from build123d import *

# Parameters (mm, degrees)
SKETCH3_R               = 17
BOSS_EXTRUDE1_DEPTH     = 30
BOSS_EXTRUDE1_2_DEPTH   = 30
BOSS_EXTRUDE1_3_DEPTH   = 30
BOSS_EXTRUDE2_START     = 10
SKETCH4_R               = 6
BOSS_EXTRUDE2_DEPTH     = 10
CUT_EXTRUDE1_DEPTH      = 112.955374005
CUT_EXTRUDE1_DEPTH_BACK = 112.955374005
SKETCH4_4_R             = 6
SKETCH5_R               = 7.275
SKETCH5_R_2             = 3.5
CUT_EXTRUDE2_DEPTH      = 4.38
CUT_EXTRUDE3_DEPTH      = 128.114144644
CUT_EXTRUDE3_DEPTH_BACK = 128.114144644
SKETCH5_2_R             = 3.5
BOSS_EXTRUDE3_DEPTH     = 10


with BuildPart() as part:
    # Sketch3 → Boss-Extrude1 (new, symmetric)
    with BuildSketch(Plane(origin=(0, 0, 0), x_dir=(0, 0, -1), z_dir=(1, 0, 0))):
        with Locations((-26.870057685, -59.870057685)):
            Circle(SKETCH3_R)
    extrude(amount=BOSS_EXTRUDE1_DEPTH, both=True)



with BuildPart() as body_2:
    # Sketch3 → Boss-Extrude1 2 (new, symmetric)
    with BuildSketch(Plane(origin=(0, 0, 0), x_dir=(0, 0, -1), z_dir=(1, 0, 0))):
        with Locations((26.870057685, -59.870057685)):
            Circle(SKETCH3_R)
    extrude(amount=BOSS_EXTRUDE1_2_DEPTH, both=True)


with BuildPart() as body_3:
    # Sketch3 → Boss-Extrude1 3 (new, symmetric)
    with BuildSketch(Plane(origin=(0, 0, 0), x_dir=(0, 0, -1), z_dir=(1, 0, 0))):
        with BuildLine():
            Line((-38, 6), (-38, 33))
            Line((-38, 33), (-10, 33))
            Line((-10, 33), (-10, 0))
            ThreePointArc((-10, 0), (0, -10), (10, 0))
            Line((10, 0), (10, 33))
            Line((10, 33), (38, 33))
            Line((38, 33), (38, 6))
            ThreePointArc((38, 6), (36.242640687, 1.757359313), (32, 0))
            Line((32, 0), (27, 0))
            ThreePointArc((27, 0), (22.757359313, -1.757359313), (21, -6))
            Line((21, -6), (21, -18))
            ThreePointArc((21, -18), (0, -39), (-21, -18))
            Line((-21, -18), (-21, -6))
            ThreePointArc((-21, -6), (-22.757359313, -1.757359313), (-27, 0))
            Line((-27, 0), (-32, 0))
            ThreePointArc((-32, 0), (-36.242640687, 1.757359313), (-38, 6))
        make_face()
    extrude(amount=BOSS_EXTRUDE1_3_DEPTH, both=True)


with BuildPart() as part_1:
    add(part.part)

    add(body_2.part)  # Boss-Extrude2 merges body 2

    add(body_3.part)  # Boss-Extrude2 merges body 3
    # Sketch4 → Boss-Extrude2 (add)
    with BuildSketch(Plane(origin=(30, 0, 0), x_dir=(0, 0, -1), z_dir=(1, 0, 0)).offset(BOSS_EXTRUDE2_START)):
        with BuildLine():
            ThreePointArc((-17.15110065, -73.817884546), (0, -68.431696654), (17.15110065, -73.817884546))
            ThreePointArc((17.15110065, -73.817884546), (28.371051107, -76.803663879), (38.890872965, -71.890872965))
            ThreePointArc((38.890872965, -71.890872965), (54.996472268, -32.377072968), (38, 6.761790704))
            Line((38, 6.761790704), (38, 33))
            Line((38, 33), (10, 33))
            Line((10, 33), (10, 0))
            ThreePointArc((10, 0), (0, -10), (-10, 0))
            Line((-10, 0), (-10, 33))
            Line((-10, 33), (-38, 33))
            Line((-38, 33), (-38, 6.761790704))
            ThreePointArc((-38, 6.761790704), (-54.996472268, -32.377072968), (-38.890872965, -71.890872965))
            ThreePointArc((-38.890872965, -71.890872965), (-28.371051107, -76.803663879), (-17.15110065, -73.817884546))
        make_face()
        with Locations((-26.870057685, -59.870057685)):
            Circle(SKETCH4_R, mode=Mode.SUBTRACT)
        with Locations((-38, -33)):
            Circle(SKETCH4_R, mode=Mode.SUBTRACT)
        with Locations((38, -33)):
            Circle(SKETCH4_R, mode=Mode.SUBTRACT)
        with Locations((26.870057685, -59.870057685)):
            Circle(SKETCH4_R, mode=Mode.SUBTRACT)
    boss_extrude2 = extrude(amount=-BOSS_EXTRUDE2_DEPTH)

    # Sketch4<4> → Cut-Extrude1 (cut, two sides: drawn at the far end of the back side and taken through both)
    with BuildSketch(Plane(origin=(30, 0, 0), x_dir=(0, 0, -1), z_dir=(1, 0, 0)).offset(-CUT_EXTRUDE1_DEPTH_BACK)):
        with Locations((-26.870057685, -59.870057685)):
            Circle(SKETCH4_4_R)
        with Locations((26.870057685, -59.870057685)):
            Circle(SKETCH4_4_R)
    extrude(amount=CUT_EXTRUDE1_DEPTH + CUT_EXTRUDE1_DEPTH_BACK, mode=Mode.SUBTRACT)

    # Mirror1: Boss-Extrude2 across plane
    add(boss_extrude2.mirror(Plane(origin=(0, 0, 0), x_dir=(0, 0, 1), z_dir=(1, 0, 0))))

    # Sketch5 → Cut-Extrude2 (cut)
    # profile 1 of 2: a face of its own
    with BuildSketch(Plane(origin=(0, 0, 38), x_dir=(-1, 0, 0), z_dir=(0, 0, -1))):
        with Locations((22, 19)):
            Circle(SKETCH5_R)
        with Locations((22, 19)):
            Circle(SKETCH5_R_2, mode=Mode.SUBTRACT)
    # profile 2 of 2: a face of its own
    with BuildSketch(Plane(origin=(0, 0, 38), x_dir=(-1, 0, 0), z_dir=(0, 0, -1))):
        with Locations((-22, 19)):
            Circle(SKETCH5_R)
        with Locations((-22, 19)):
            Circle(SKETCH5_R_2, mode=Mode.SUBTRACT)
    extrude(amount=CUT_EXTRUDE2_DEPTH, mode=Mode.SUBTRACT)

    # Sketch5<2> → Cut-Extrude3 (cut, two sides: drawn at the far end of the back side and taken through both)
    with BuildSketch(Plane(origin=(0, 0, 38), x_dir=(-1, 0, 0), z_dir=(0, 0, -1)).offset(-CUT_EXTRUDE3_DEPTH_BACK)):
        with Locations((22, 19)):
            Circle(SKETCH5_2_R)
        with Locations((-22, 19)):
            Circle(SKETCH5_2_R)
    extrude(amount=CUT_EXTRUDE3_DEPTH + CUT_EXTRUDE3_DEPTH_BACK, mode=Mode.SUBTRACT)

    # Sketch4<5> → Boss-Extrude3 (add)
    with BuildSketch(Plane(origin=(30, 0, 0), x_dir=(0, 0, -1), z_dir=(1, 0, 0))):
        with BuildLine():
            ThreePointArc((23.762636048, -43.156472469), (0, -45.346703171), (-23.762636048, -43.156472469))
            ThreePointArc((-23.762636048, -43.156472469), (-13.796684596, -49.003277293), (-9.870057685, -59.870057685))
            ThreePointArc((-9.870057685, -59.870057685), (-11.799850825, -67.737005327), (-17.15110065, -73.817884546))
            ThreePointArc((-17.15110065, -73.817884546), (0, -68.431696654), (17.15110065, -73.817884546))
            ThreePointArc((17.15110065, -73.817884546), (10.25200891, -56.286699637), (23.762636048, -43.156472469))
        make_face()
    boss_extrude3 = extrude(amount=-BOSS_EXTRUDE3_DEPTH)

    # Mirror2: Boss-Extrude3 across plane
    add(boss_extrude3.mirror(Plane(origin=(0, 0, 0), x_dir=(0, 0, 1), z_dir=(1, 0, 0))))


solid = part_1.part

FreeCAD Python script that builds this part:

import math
import FreeCAD as App
import Part
import Sketcher
from FreeCAD import Vector

doc = App.newDocument("Part")
body = doc.addObject("PartDesign::Body", "Body")

sketch1 = body.newObject("Sketcher::SketchObject", "Sketch")
sketch1.AttachmentSupport = (doc.getObject("YZ_Plane"), [""])
sketch1.MapMode = "FlatFace"
sketch1.addGeometry(Part.Circle(Vector(-59.870058, 26.870058, 0), Vector(0, 0, 1), 17), False)
sketch1.addConstraint([
    Sketcher.Constraint("Diameter", 0, 34.0),
    Sketcher.Constraint("DistanceX", 0, 3, -1, 1, 59.870058),
    Sketcher.Constraint("DistanceY", -1, 1, 0, 3, 26.870058),
])
pad1 = body.newObject("PartDesign::Pad", "Pad")
pad1.Profile = sketch1
pad1.Length = 60
pad1.Midplane = True
body2 = doc.addObject("PartDesign::Body", "Body001")

sketch2 = body2.newObject("Sketcher::SketchObject", "Sketch001")
sketch2.AttachmentSupport = (doc.getObject("YZ_Plane001"), [""])
sketch2.MapMode = "FlatFace"
sketch2.addGeometry(Part.Circle(Vector(-59.870058, -26.870058, 0), Vector(0, 0, 1), 17), False)
sketch2.addConstraint([
    Sketcher.Constraint("Diameter", 0, 34.0),
    Sketcher.Constraint("DistanceX", 0, 3, -1, 1, 59.870058),
    Sketcher.Constraint("DistanceY", 0, 3, -1, 1, 26.870058),
])
pad2 = body2.newObject("PartDesign::Pad", "Pad001")
pad2.Profile = sketch2
pad2.Length = 60
pad2.Midplane = True
body3 = doc.addObject("PartDesign::Body", "Body002")

sketch3 = body3.newObject("Sketcher::SketchObject", "Sketch002")
sketch3.AttachmentSupport = (doc.getObject("YZ_Plane002"), [""])
sketch3.MapMode = "FlatFace"
sketch3.addGeometry([
    Part.LineSegment(Vector(33, 38, 0), Vector(6, 38, 0)),
    Part.ArcOfCircle(Part.Circle(Vector(6, 32, 0), Vector(0, 0, 1), 6), math.radians(90), math.radians(180)),
    Part.LineSegment(Vector(0, 32, 0), Vector(0, 27, 0)),
    Part.ArcOfCircle(Part.Circle(Vector(-6, 27, 0), Vector(0, 0, 1), 6), math.radians(-90), math.radians(0)),
    Part.LineSegment(Vector(-6, 21, 0), Vector(-18, 21, 0)),
    Part.ArcOfCircle(Part.Circle(Vector(-18, 0, 0), Vector(0, 0, 1), 21), math.radians(90), math.radians(270)),
    Part.LineSegment(Vector(-18, -21, 0), Vector(-6, -21, 0)),
    Part.ArcOfCircle(Part.Circle(Vector(-6, -27, 0), Vector(0, 0, 1), 6), math.radians(0), math.radians(90)),
    Part.LineSegment(Vector(0, -27, 0), Vector(0, -32, 0)),
    Part.ArcOfCircle(Part.Circle(Vector(6, -32, 0), Vector(0, 0, 1), 6), math.radians(180), math.radians(270)),
    Part.LineSegment(Vector(6, -38, 0), Vector(33, -38, 0)),
    Part.LineSegment(Vector(33, -38, 0), Vector(33, -10, 0)),
    Part.LineSegment(Vector(33, -10, 0), Vector(0, -10, 0)),
    Part.ArcOfCircle(Part.Circle(Vector(0, 0, 0), Vector(0, 0, 1), 10), math.radians(90), math.radians(270)),
    Part.LineSegment(Vector(0, 10, 0), Vector(33, 10, 0)),
    Part.LineSegment(Vector(33, 10, 0), Vector(33, 38, 0)),
], False)
sketch3.addConstraint([
    Sketcher.Constraint("Tangent", 0, 2, 1, 1),
    Sketcher.Constraint("Tangent", 1, 2, 2, 1),
    Sketcher.Constraint("Tangent", 2, 2, 3, 2),
    Sketcher.Constraint("Tangent", 3, 1, 4, 1),
    Sketcher.Constraint("Tangent", 4, 2, 5, 1),
    Sketcher.Constraint("Tangent", 5, 2, 6, 1),
    Sketcher.Constraint("Tangent", 6, 2, 7, 2),
    Sketcher.Constraint("Tangent", 7, 1, 8, 1),
    Sketcher.Constraint("Tangent", 8, 2, 9, 1),
    Sketcher.Constraint("Tangent", 9, 2, 10, 1),
    Sketcher.Constraint("Coincident", 10, 2, 11, 1),
    Sketcher.Constraint("Coincident", 11, 2, 12, 1),
    Sketcher.Constraint("Tangent", 12, 2, 13, 2),
    Sketcher.Constraint("Tangent", 13, 1, 14, 1),
    Sketcher.Constraint("Coincident", 14, 2, 15, 1),
    Sketcher.Constraint("Coincident", 15, 2, 0, 1),
    Sketcher.Constraint("Horizontal", 0),
    Sketcher.Constraint("Vertical", 2),
    Sketcher.Constraint("Horizontal", 4),
    Sketcher.Constraint("Horizontal", 6),
    Sketcher.Constraint("Vertical", 8),
    Sketcher.Constraint("Horizontal", 10),
    Sketcher.Constraint("Vertical", 11),
    Sketcher.Constraint("Horizontal", 12),
    Sketcher.Constraint("Horizontal", 14),
    Sketcher.Constraint("Vertical", 15),
    Sketcher.Constraint("Coincident", 13, 3, -1, 1),
    Sketcher.Constraint("Equal", 1, 3),
    Sketcher.Constraint("Equal", 3, 7),
    Sketcher.Constraint("Equal", 7, 9),
    Sketcher.Constraint("Symmetric", 2, 2, 7, 1, -1, 1),
    Sketcher.Constraint("Symmetric", 1, 3, 9, 3, -1),
    Sketcher.Constraint("Vertical", 11, 2, 14, 2),
    Sketcher.Constraint("Radius", 1, 6.0),
    Sketcher.Constraint("Radius", 5, 21.0),
    Sketcher.Constraint("Radius", 13, 10.0),
    Sketcher.Constraint("DistanceX", 0, 2, 0, 1, 27.0),
    Sketcher.Constraint("DistanceX", 4, 2, 4, 1, 12.0),
    Sketcher.Constraint("DistanceY", 2, 2, 2, 1, 5.0),
])
pad3 = body3.newObject("PartDesign::Pad", "Pad002")
pad3.Profile = sketch3
pad3.Length = 60
pad3.Midplane = True
body.AllowCompound = True
doc.recompute()

boolean = body.newObject("PartDesign::Boolean", "Boolean")
boolean.Type = "Fuse"
boolean.addObjects([body2])
doc.recompute()

boolean2 = body.newObject("PartDesign::Boolean", "Boolean001")
boolean2.Type = "Fuse"
boolean2.addObjects([body3])

sketch4 = body.newObject("Sketcher::SketchObject", "Sketch003")
sketch4.AttachmentSupport = (doc.getObject("YZ_Plane"), [""])
sketch4.MapMode = "FlatFace"
sketch4.AttachmentOffset = App.Placement(Vector(0, 0, 40), App.Rotation())
sketch4.addGeometry([
    Part.ArcOfCircle(Part.Circle(Vector(-98.431697, 0, 0), Vector(0, 0, 1), 30), math.radians(-34.869091), math.radians(34.869091)),
    Part.ArcOfCircle(Part.Circle(Vector(-59.870058, -26.870058, 0), Vector(0, 0, 1), 17), math.radians(145.130909), math.radians(225)),
    Part.ArcOfCircle(Part.Circle(Vector(-33, 0, 0), Vector(0, 0, 1), 55), math.radians(-135), math.radians(-43.702114)),
    Part.LineSegment(Vector(6.761791, -38, 0), Vector(33, -38, 0)),
    Part.LineSegment(Vector(33, -38, 0), Vector(33, -10, 0)),
    Part.LineSegment(Vector(33, -10, 0), Vector(0, -10, 0)),
    Part.ArcOfCircle(Part.Circle(Vector(0, 0, 0), Vector(0, 0, 1), 10), math.radians(90), math.radians(270)),
    Part.LineSegment(Vector(0, 10, 0), Vector(33, 10, 0)),
    Part.LineSegment(Vector(33, 10, 0), Vector(33, 38, 0)),
    Part.LineSegment(Vector(33, 38, 0), Vector(6.761791, 38, 0)),
    Part.ArcOfCircle(Part.Circle(Vector(-33, 0, 0), Vector(0, 0, 1), 55), math.radians(43.702114), math.radians(135)),
    Part.ArcOfCircle(Part.Circle(Vector(-59.870058, 26.870058, 0), Vector(0, 0, 1), 17), math.radians(135), math.radians(214.869091)),
    Part.Circle(Vector(-59.870058, 26.870058, 0), Vector(0, 0, 1), 6),
    Part.Circle(Vector(-59.870058, -26.870058, 0), Vector(0, 0, 1), 6),
    Part.Circle(Vector(-33, 38, 0), Vector(0, 0, 1), 6),
    Part.Circle(Vector(-33, -38, 0), Vector(0, 0, 1), 6),
], False)
sketch4.addConstraint([
    Sketcher.Constraint("Tangent", 0, 1, 1, 1),
    Sketcher.Constraint("Tangent", 1, 2, 2, 1),
    Sketcher.Constraint("Coincident", 2, 2, 3, 1),
    Sketcher.Constraint("Coincident", 3, 2, 4, 1),
    Sketcher.Constraint("Coincident", 4, 2, 5, 1),
    Sketcher.Constraint("Tangent", 5, 2, 6, 2),
    Sketcher.Constraint("Tangent", 6, 1, 7, 1),
    Sketcher.Constraint("Coincident", 7, 2, 8, 1),
    Sketcher.Constraint("Coincident", 8, 2, 9, 1),
    Sketcher.Constraint("Coincident", 9, 2, 10, 1),
    Sketcher.Constraint("Tangent", 10, 2, 11, 1),
    Sketcher.Constraint("Tangent", 11, 2, 0, 2),
    Sketcher.Constraint("Horizontal", 3),
    Sketcher.Constraint("Vertical", 4),
    Sketcher.Constraint("Horizontal", 5),
    Sketcher.Constraint("Horizontal", 7),
    Sketcher.Constraint("Vertical", 8),
    Sketcher.Constraint("Horizontal", 9),
    Sketcher.Constraint("Coincident", 6, 3, -1, 1),
    Sketcher.Constraint("Coincident", 10, 3, 2, 3),
    Sketcher.Constraint("Coincident", 12, 3, 11, 3),
    Sketcher.Constraint("Coincident", 13, 3, 1, 3),
    Sketcher.Constraint("Equal", 2, 10),
    Sketcher.Constraint("Equal", 1, 11),
    Sketcher.Constraint("Equal", 12, 13),
    Sketcher.Constraint("Equal", 13, 14),
    Sketcher.Constraint("Equal", 14, 15),
    Sketcher.Constraint("Symmetric", 1, 3, 11, 3, -1),
    Sketcher.Constraint("Symmetric", 14, 3, 15, 3, -1),
    Sketcher.Constraint("Symmetric", 3, 2, 8, 2, -1),
    Sketcher.Constraint("Horizontal", 15, 3, 2, 2),
    Sketcher.Constraint("Vertical", 10, 3, 14, 3),
    Sketcher.Constraint("Diameter", 12, 12.0),
    Sketcher.Constraint("Radius", 0, 30.0),
    Sketcher.Constraint("Radius", 1, 17.0),
    Sketcher.Constraint("Radius", 2, 55.0),
    Sketcher.Constraint("Radius", 6, 10.0),
    Sketcher.Constraint("DistanceX", 5, 2, 5, 1, 33.0),
    Sketcher.Constraint("DistanceY", 4, 1, 4, 2, 28.0),
    Sketcher.Constraint("DistanceX", 2, 3, -1, 1, 33.0),
    Sketcher.Constraint("DistanceY", 0, 1, -1, 1, 17.151101),
])
pad4 = body.newObject("PartDesign::Pad", "Pad003")
pad4.Profile = sketch4
pad4.Length = 10
pad4.Reversed = True

sketch5 = body.newObject("Sketcher::SketchObject", "Sketch004")
sketch5.AttachmentSupport = (doc.getObject("YZ_Plane"), [""])
sketch5.MapMode = "FlatFace"
sketch5.AttachmentOffset = App.Placement(Vector(0, 0, 30), App.Rotation())
sketch5.addGeometry([
    Part.Circle(Vector(-59.870058, 26.870058, 0), Vector(0, 0, 1), 6),
    Part.Circle(Vector(-59.870058, -26.870058, 0), Vector(0, 0, 1), 6),
], False)
sketch5.addConstraint([
    Sketcher.Constraint("Equal", 0, 1),
    Sketcher.Constraint("Symmetric", 0, 3, 1, 3, -1),
    Sketcher.Constraint("Diameter", 0, 12.0),
    Sketcher.Constraint("DistanceX", 0, 3, -1, 1, 59.870058),
    Sketcher.Constraint("DistanceY", -1, 1, 0, 3, 26.870058),
])
pocket1 = body.newObject("PartDesign::Pocket", "Pocket")
pocket1.Profile = sketch5
pocket1.Type = "ThroughAll"
pocket1.Midplane = True
doc.recompute()

mirrored = body.newObject("PartDesign::Mirrored", "Mirrored")
mirrored.Originals = [pad4]
mirrored.MirrorPlane = (doc.getObject("YZ_Plane"), [""])
body.Tip = mirrored

sketch6 = body.newObject("Sketcher::SketchObject", "Sketch005")
sketch6.AttachmentSupport = (doc.getObject("XY_Plane"), [""])
sketch6.MapMode = "FlatFace"
sketch6.AttachmentOffset = App.Placement(Vector(0, 0, 38), App.Rotation())
sketch6.addGeometry([
    Part.Circle(Vector(-22, 19, 0), Vector(0, 0, 1), 7.275),
    Part.Circle(Vector(-22, 19, 0), Vector(0, 0, 1), 3.5),
    Part.Circle(Vector(22, 19, 0), Vector(0, 0, 1), 7.275),
    Part.Circle(Vector(22, 19, 0), Vector(0, 0, 1), 3.5),
], False)
sketch6.addConstraint([
    Sketcher.Constraint("Coincident", 1, 3, 0, 3),
    Sketcher.Constraint("Coincident", 3, 3, 2, 3),
    Sketcher.Constraint("Equal", 0, 2),
    Sketcher.Constraint("Equal", 1, 3),
    Sketcher.Constraint("Symmetric", 0, 3, 2, 3, -2),
    Sketcher.Constraint("Diameter", 1, 7.0),
    Sketcher.Constraint("Diameter", 0, 14.55),
    Sketcher.Constraint("DistanceX", 0, 3, -1, 1, 22.0),
    Sketcher.Constraint("DistanceY", -1, 1, 0, 3, 19.0),
])
pocket2 = body.newObject("PartDesign::Pocket", "Pocket001")
pocket2.Profile = sketch6
pocket2.Length = 4.38

sketch7 = body.newObject("Sketcher::SketchObject", "Sketch006")
sketch7.AttachmentSupport = (doc.getObject("XY_Plane"), [""])
sketch7.MapMode = "FlatFace"
sketch7.AttachmentOffset = App.Placement(Vector(0, 0, 38), App.Rotation())
sketch7.addGeometry([
    Part.Circle(Vector(-22, 19, 0), Vector(0, 0, 1), 3.5),
    Part.Circle(Vector(22, 19, 0), Vector(0, 0, 1), 3.5),
], False)
sketch7.addConstraint([
    Sketcher.Constraint("Equal", 0, 1),
    Sketcher.Constraint("Symmetric", 0, 3, 1, 3, -2),
    Sketcher.Constraint("Diameter", 0, 7.0),
    Sketcher.Constraint("DistanceX", 0, 3, -1, 1, 22.0),
    Sketcher.Constraint("DistanceY", -1, 1, 0, 3, 19.0),
])
pocket3 = body.newObject("PartDesign::Pocket", "Pocket002")
pocket3.Profile = sketch7
pocket3.Type = "ThroughAll"
pocket3.Midplane = True

sketch8 = body.newObject("Sketcher::SketchObject", "Sketch007")
sketch8.AttachmentSupport = (doc.getObject("YZ_Plane"), [""])
sketch8.MapMode = "FlatFace"
sketch8.AttachmentOffset = App.Placement(Vector(0, 0, 30), App.Rotation())
sketch8.addGeometry([
    Part.ArcOfCircle(Part.Circle(Vector(84.653297, 0, 0), Vector(0, 0, 1), 130), math.radians(169.467717), math.radians(190.532283)),
    Part.ArcOfCircle(Part.Circle(Vector(-59.870058, 26.870058, 0), Vector(0, 0, 1), 17), math.radians(-90), math.radians(-10.532283)),
    Part.ArcOfCircle(Part.Circle(Vector(-59.870058, 26.870058, 0), Vector(0, 0, 1), 17), math.radians(-145.130909), math.radians(-90)),
    Part.ArcOfCircle(Part.Circle(Vector(-98.431697, 0, 0), Vector(0, 0, 1), 30), math.radians(-34.869091), math.radians(34.869091)),
    Part.ArcOfCircle(Part.Circle(Vector(-59.870058, -26.870058, 0), Vector(0, 0, 1), 17), math.radians(10.532283), math.radians(145.130909)),
], False)
sketch8.addConstraint([
    Sketcher.Constraint("Tangent", 0, 1, 1, 2),
    Sketcher.Constraint("Tangent", 1, 1, 2, 2),
    Sketcher.Constraint("Tangent", 2, 1, 3, 2),
    Sketcher.Constraint("Tangent", 3, 1, 4, 2),
    Sketcher.Constraint("Tangent", 4, 1, 0, 2),
    Sketcher.Constraint("Equal", 1, 2),
    Sketcher.Constraint("Equal", 2, 4),
    Sketcher.Constraint("Symmetric", 1, 3, 4, 3, -1),
    Sketcher.Constraint("Vertical", 4, 3, 1, 1),
    Sketcher.Constraint("Radius", 0, 130.0),
    Sketcher.Constraint("Radius", 1, 17.0),
    Sketcher.Constraint("Radius", 3, 30.0),
    Sketcher.Constraint("DistanceY", -1, 1, 2, 1, 17.151101),
    Sketcher.Constraint("DistanceX", -1, 1, 0, 3, 84.653297),
])
pad5 = body.newObject("PartDesign::Pad", "Pad004")
pad5.Profile = sketch8
pad5.Length = 10
pad5.Reversed = True
doc.recompute()

mirrored2 = body.newObject("PartDesign::Mirrored", "Mirrored001")
mirrored2.Originals = [pad5]
mirrored2.MirrorPlane = (doc.getObject("YZ_Plane"), [""])
body.Tip = mirrored2

doc.recompute()
